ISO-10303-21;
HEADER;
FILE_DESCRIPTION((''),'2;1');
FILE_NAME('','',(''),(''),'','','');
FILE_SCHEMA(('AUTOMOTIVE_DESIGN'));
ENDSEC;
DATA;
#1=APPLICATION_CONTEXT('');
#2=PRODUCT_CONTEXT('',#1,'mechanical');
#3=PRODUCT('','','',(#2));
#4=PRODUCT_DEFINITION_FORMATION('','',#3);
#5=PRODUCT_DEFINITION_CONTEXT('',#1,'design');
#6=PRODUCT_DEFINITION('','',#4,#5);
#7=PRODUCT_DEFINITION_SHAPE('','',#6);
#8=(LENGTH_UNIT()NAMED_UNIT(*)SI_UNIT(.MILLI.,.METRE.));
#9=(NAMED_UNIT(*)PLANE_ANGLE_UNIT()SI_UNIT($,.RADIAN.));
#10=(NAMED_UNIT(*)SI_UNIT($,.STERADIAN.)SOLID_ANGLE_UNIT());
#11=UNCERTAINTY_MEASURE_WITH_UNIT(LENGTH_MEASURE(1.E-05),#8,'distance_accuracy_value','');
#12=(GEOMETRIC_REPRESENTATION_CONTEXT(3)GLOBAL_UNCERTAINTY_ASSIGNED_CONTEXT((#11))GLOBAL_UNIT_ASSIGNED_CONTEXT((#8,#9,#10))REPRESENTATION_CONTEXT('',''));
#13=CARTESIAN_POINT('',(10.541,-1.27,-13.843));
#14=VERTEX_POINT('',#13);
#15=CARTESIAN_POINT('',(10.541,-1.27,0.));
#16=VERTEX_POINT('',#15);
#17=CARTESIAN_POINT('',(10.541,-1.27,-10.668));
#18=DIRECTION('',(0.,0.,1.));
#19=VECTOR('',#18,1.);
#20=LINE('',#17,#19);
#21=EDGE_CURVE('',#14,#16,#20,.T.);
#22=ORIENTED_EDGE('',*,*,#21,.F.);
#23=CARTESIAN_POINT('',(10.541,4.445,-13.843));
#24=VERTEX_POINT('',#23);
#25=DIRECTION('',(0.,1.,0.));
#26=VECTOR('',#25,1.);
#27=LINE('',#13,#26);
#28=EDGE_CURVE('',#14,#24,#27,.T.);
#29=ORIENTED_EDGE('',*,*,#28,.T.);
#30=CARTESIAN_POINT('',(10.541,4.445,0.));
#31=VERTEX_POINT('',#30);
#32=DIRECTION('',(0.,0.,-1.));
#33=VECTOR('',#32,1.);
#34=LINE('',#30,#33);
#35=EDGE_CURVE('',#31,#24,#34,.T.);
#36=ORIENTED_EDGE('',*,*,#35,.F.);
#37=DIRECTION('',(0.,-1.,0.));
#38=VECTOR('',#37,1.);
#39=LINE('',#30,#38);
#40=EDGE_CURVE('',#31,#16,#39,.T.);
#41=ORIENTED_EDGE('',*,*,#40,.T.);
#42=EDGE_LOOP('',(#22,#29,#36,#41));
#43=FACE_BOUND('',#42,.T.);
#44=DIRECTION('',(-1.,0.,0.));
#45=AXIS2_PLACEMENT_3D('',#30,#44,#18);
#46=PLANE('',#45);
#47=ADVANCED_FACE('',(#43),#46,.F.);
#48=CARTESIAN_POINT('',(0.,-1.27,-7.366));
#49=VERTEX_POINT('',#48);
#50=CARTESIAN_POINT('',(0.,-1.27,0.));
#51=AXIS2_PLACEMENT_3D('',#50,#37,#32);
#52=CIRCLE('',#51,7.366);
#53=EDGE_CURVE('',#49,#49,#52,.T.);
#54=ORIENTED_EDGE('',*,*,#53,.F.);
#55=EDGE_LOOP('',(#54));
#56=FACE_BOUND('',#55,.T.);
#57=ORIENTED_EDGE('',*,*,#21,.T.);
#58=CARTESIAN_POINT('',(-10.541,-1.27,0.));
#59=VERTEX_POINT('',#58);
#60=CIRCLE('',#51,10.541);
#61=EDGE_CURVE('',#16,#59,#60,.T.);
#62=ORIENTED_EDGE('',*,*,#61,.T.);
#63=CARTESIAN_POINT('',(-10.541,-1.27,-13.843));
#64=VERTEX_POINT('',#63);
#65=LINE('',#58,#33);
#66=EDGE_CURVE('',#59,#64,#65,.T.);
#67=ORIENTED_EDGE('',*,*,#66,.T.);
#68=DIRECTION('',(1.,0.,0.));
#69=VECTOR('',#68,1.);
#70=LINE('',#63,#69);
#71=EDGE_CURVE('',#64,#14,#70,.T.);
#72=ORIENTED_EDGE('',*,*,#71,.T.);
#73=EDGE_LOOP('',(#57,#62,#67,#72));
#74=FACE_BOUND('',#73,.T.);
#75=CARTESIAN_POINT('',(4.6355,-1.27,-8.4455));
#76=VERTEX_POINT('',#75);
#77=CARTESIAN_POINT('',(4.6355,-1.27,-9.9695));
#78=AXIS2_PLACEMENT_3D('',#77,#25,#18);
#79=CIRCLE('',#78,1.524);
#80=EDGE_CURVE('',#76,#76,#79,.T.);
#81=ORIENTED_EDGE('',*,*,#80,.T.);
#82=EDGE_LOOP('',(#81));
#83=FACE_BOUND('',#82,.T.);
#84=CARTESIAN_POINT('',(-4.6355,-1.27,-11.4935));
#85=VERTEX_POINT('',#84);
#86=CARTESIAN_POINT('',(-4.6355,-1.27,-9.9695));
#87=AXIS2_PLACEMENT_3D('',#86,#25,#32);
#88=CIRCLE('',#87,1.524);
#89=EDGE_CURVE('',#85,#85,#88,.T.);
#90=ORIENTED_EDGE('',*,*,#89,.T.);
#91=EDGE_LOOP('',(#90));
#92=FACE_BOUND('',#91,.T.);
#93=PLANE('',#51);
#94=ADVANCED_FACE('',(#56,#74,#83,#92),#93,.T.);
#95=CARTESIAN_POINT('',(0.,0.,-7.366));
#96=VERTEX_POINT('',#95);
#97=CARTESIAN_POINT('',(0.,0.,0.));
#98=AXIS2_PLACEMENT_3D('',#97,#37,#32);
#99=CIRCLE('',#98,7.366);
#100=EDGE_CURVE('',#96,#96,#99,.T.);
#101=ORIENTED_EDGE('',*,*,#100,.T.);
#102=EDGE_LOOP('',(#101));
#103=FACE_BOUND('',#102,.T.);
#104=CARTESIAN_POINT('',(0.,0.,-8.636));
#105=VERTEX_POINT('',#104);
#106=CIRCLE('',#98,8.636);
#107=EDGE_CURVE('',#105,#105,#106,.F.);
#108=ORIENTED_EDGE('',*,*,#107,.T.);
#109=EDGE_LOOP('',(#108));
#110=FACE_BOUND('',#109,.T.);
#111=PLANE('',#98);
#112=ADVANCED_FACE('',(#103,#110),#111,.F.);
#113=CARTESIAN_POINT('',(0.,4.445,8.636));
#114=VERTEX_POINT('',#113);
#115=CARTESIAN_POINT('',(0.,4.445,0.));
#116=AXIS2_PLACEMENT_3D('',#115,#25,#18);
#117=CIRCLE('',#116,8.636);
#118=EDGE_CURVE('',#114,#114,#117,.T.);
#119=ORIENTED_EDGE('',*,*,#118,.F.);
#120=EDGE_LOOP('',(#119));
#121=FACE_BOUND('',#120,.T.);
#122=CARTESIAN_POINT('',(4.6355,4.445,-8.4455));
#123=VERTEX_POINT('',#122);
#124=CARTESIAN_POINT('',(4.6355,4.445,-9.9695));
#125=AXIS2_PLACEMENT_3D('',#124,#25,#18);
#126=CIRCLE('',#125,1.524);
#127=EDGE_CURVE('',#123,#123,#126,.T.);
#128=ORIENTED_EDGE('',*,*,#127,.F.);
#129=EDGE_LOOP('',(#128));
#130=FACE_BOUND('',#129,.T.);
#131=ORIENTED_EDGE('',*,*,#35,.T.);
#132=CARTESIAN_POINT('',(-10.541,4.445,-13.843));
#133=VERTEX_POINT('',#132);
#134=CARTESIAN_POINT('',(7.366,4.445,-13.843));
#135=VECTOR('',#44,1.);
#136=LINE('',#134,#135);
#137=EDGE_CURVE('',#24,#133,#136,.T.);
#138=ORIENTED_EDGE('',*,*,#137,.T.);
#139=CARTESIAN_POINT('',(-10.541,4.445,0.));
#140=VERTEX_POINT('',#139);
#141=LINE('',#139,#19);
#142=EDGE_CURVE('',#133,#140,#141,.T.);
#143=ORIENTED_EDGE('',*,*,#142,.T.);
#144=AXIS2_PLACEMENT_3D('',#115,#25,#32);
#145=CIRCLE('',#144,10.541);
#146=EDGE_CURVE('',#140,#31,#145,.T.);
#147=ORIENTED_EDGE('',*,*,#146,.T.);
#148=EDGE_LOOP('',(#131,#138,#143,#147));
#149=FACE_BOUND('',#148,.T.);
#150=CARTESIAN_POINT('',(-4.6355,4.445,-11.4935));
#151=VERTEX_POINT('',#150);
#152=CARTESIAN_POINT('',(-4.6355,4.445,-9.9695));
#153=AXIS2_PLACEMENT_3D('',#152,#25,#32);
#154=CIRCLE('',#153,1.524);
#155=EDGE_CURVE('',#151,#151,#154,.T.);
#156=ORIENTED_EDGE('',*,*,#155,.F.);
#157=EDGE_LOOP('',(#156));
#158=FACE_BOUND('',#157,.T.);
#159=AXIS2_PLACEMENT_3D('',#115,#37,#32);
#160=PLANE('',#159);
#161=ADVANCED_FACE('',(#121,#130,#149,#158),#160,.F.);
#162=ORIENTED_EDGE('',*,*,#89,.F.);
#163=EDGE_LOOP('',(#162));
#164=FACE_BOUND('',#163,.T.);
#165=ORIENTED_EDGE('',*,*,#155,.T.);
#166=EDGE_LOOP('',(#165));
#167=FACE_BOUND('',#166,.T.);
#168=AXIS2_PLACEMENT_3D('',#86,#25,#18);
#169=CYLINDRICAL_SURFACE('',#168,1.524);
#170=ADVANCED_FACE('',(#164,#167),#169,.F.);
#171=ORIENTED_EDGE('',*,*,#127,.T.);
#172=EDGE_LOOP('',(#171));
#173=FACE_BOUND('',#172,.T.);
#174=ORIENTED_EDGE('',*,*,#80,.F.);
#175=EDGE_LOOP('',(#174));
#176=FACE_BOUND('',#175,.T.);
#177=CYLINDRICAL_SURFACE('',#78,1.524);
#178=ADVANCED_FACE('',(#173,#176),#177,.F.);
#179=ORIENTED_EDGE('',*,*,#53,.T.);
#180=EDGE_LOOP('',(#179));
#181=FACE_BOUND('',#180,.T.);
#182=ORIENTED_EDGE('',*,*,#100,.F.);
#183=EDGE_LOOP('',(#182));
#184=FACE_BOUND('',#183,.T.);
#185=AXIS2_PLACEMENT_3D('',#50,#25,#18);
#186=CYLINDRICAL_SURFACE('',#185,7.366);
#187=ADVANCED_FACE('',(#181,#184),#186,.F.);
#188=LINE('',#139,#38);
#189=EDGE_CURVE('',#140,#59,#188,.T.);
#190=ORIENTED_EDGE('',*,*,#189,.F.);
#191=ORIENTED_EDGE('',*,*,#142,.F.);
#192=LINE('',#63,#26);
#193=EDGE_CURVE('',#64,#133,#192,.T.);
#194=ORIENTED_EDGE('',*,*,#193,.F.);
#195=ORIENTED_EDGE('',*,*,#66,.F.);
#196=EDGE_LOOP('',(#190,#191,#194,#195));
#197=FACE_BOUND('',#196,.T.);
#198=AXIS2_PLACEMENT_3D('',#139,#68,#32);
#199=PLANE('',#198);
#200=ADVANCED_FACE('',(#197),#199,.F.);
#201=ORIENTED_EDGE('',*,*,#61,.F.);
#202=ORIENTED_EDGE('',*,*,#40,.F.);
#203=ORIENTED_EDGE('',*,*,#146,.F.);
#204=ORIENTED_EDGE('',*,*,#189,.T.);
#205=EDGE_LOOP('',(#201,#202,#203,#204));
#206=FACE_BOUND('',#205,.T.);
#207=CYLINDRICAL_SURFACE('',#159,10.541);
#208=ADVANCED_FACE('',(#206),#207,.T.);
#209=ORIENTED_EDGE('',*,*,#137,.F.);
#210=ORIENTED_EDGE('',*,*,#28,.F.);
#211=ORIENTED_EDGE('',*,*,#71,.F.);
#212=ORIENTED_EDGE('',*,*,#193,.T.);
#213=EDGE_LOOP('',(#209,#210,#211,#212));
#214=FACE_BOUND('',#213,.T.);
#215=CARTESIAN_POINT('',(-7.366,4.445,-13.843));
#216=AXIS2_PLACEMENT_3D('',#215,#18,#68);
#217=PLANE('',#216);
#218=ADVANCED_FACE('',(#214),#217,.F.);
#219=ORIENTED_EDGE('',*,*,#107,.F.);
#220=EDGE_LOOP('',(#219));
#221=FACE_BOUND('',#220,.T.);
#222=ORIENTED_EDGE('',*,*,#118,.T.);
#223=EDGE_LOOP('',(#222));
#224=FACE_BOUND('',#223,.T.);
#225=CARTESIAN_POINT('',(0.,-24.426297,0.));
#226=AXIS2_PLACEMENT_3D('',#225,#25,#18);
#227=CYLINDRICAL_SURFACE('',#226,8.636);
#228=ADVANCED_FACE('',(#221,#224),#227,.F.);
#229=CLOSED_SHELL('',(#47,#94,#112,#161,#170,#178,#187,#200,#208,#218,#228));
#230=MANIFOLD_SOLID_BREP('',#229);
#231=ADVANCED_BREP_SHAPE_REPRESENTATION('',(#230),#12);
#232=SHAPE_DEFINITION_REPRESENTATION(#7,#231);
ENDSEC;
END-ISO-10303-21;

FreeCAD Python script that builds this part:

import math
import FreeCAD as App
import Part
import Sketcher
from FreeCAD import Vector
Q = App.Units.Quantity


def add_polygon(sketch, points):
    """Adds a closed chain of lines whose ends are joined by coincident constraints."""
    first, n = sketch.GeometryCount, len(points)
    for a, b in zip(points, points[1:] + points[:1]):
        sketch.addGeometry(Part.LineSegment(App.Vector(*a, 0), App.Vector(*b, 0)), False)
    for i in range(n):
        sketch.addConstraint(Sketcher.Constraint("Coincident", first + i, 2, first + (i + 1) % n, 1))

doc = App.newDocument("Part")
params = doc.addObject("Spreadsheet::Sheet", "Params")
for row, (alias, value) in enumerate([
    ("sketch1_diameter", "0.48 in"),
    ("sketch1_radius", "0.415 in"),
    ("sketch1_width", "1.58 in"),
    ("sketch1_height", "0.42 in"),
    ("sketch1_height2", "0.125 in"),
    ("pad1_length", "0.175 in"),
    ("sketch2_diameter", "0.58 in"),
    ("sketch2_radius", "0.415 in"),
    ("sketch2_height", "0.545 in"),
    ("pad2_length", "0.05 in"),
    ("sketch3_diameter", "0.68 in"),
    ("pocket1_length", "0.175 in"),
    ("sketch4_diameter", "0.12 in"),
    ("sketch5_width", "0.375 in"),
    ("sketch5_height", "0.175 in"),
    ("pocket3_length", "0.125 in"),
], start=1):
    params.set(f"A{row}", alias)
    params.set(f"B{row}", "=" + value)
    params.setAlias(f"B{row}", alias)

body = doc.addObject("PartDesign::Body", "Body")

# Sketch on XZ plane
sketch1 = body.newObject("Sketcher::SketchObject", "Sketch")
sketch1.AttachmentSupport = (doc.getObject("XZ_Plane"), [""])
sketch1.MapMode = "FlatFace"
sketch1.addGeometry([
    Part.LineSegment(Vector(-10.5, -10.7, 0), Vector(-10.5, 0, 0)),  # 0
    Part.ArcOfCircle(Part.Circle(Vector(0, 0, 0), Vector(0, 0, 1), 10.5), math.radians(0), math.radians(180)),  # 1
    Part.LineSegment(Vector(10.5, 0, 0), Vector(10.5, -10.7, 0)),  # 2
    Part.LineSegment(Vector(10.5, -10.7, 0), Vector(20.1, -10.7, 0)),  # 3
    Part.LineSegment(Vector(20.1, -10.7, 0), Vector(20.1, -13.8, 0)),  # 4
    Part.LineSegment(Vector(20.1, -13.8, 0), Vector(-20.1, -13.8, 0)),  # 5
    Part.LineSegment(Vector(-20.1, -13.8, 0), Vector(-20.1, -10.7, 0)),  # 6
    Part.LineSegment(Vector(-20.1, -10.7, 0), Vector(-10.5, -10.7, 0)),  # 7
    Part.Circle(Vector(0, 0, 0), Vector(0, 0, 1), 6.1),  # 8
], False)
sketch1.addConstraint([
    Sketcher.Constraint("Tangent", 0, 2, 1, 2),
    Sketcher.Constraint("Tangent", 1, 1, 2, 1),
    Sketcher.Constraint("Coincident", 2, 2, 3, 1),
    Sketcher.Constraint("Coincident", 3, 2, 4, 1),
    Sketcher.Constraint("Coincident", 4, 2, 5, 1),
    Sketcher.Constraint("Coincident", 5, 2, 6, 1),
    Sketcher.Constraint("Coincident", 6, 2, 7, 1),
    Sketcher.Constraint("Coincident", 7, 2, 0, 1),
    Sketcher.Constraint("Vertical", 0),
    Sketcher.Constraint("Vertical", 2),
    Sketcher.Constraint("Horizontal", 3),
    Sketcher.Constraint("Vertical", 4),
    Sketcher.Constraint("Horizontal", 5),
    Sketcher.Constraint("Vertical", 6),
    Sketcher.Constraint("Horizontal", 7),
    Sketcher.Constraint("Coincident", 1, 3, -1, 1),
    Sketcher.Constraint("Coincident", 8, 3, -1, 1),
    Sketcher.Constraint("Symmetric", 3, 2, 6, 2, -2),
    Sketcher.Constraint("Diameter", 8, Q("0.48 in")),
    Sketcher.Constraint("Radius", 1, Q("0.415 in")),
    Sketcher.Constraint("DistanceX", 5, 2, 5, 1, Q("1.58 in")),
    Sketcher.Constraint("DistanceY", 0, 1, 0, 2, Q("0.42 in")),
    Sketcher.Constraint("DistanceY", 4, 2, 4, 1, Q("0.125 in")),
])
sketch1.setExpression("Constraints[18]", "Params.sketch1_diameter")
sketch1.setExpression("Constraints[19]", "Params.sketch1_radius")
sketch1.setExpression("Constraints[20]", "Params.sketch1_width")
sketch1.setExpression("Constraints[21]", "Params.sketch1_height")
sketch1.setExpression("Constraints[22]", "Params.sketch1_height2")
pad1 = body.newObject("PartDesign::Pad", "Pad")
pad1.Profile = sketch1
pad1.setExpression("Length", "Params.pad1_length")
pad1.Reversed = True

# Sketch on XZ plane
sketch2 = body.newObject("Sketcher::SketchObject", "Sketch001")
sketch2.AttachmentSupport = (doc.getObject("XZ_Plane"), [""])
sketch2.MapMode = "FlatFace"
sketch2.addGeometry([
    Part.LineSegment(Vector(-11, 0, 0), Vector(-11, -14, 0)),  # 0
    Part.LineSegment(Vector(-11, -14, 0), Vector(11, -14, 0)),  # 1
    Part.LineSegment(Vector(11, -14, 0), Vector(11, 0, 0)),  # 2
    Part.ArcOfCircle(Part.Circle(Vector(0, 0, 0), Vector(0, 0, 1), 11), math.radians(0), math.radians(180)),  # 3
    Part.Circle(Vector(0, 0, 0), Vector(0, 0, 1), 7),  # 4
], False)
sketch2.addConstraint([
    Sketcher.Constraint("Coincident", 0, 2, 1, 1),
    Sketcher.Constraint("Coincident", 1, 2, 2, 1),
    Sketcher.Constraint("Tangent", 2, 2, 3, 1),
    Sketcher.Constraint("Tangent", 3, 2, 0, 1),
    Sketcher.Constraint("Vertical", 0),
    Sketcher.Constraint("Horizontal", 1),
    Sketcher.Constraint("Vertical", 2),
    Sketcher.Constraint("Coincident", 3, 3, -1, 1),
    Sketcher.Constraint("Coincident", 4, 3, -1, 1),
    Sketcher.Constraint("Diameter", 4, Q("0.58 in")),
    Sketcher.Constraint("Radius", 3, Q("0.415 in")),
    Sketcher.Constraint("DistanceY", 0, 2, 0, 1, Q("0.545 in")),
])
sketch2.setExpression("Constraints[9]", "Params.sketch2_diameter")
sketch2.setExpression("Constraints[10]", "Params.sketch2_radius")
sketch2.setExpression("Constraints[11]", "Params.sketch2_height")
pad2 = body.newObject("PartDesign::Pad", "Pad001")
pad2.Profile = sketch2
pad2.setExpression("Length", "Params.pad2_length")

# Sketch on XZ plane
sketch3 = body.newObject("Sketcher::SketchObject", "Sketch002")
sketch3.AttachmentSupport = (doc.getObject("XZ_Plane"), [""])
sketch3.MapMode = "FlatFace"
sketch3.AttachmentOffset = App.Placement(Vector(0, 0, -0.175 * 25.4), App.Rotation())
sketch3.addGeometry(Part.Circle(Vector(0, 0, 0), Vector(0, 0, 1), 9), False)
sketch3.addConstraint([
    Sketcher.Constraint("Coincident", 0, 3, -1, 1),
    Sketcher.Constraint("Diameter", 0, Q("0.68 in")),
])
sketch3.setExpression("Constraints[1]", "Params.sketch3_diameter")
pocket1 = body.newObject("PartDesign::Pocket", "Pocket")
pocket1.Profile = sketch3
pocket1.setExpression("Length", "Params.pocket1_length")
pocket1.Reversed = True

# Sketch on XZ plane
sketch4 = body.newObject("Sketcher::SketchObject", "Sketch003")
sketch4.AttachmentSupport = (doc.getObject("XZ_Plane"), [""])
sketch4.MapMode = "FlatFace"
sketch4.AttachmentOffset = App.Placement(Vector(0, 0, -0.175 * 25.4), App.Rotation())
sketch4.addGeometry([
    Part.Circle(Vector(4.6, -10, 0), Vector(0, 0, 1), 1.5),
    Part.Circle(Vector(-4.6, -10, 0), Vector(0, 0, 1), 1.5),
], False)
sketch4.addConstraint([
    Sketcher.Constraint("Equal", 0, 1),
    Sketcher.Constraint("Symmetric", 0, 3, 1, 3, -2),
    Sketcher.Constraint("Diameter", 0, Q("0.12 in")),
    Sketcher.Constraint("DistanceX", 1, 3, 0, 3, Q("0.365 in")),
    Sketcher.Constraint("DistanceY", 0, 3, -1, 1, Q("0.3925 in")),
])
sketch4.setExpression("Constraints[2]", "Params.sketch4_diameter")
pocket2 = body.newObject("PartDesign::Pocket", "Pocket001")
pocket2.Profile = sketch4
pocket2.Type = "ThroughAll"
pocket2.Reversed = True

# Sketch on XY plane
sketch5 = body.newObject("Sketcher::SketchObject", "Sketch004")
sketch5.AttachmentSupport = (doc.getObject("XY_Plane"), [""])
sketch5.MapMode = "FlatFace"
sketch5.AttachmentOffset = App.Placement(Vector(0, 0, -0.42 * 25.4), App.Rotation())
add_polygon(sketch5, [(10.5, 4.4), (10.5, 0), (20.1, 0), (20.1, 4.4)])  # lines 0-3
add_polygon(sketch5, [(-20.1, 4.4), (-20.1, 0), (-10.5, 0), (-10.5, 4.4)])  # lines 4-7
sketch5.addConstraint([
    Sketcher.Constraint("Vertical", 0),
    Sketcher.Constraint("Horizontal", 1),
    Sketcher.Constraint("Vertical", 2),
    Sketcher.Constraint("Horizontal", 3),
    Sketcher.Constraint("Vertical", 4),
    Sketcher.Constraint("Horizontal", 5),
    Sketcher.Constraint("Vertical", 6),
    Sketcher.Constraint("Horizontal", 7),
    Sketcher.Constraint("Symmetric", 1, 2, 4, 2, -1, 1),
    Sketcher.Constraint("Symmetric", 0, 2, 5, 2, -2),
    Sketcher.Constraint("Horizontal", 3, 2, 6, 2),
    Sketcher.Constraint("DistanceX", 1, 1, 1, 2, Q("0.375 in")),
    Sketcher.Constraint("DistanceY", 0, 2, 0, 1, Q("0.175 in")),
    Sketcher.Constraint("DistanceX", -1, 1, 1, 2, Q("0.79 in")),
])
sketch5.setExpression("Constraints[19]", "Params.sketch5_width")
sketch5.setExpression("Constraints[20]", "Params.sketch5_height")
pocket3 = body.newObject("PartDesign::Pocket", "Pocket002")
pocket3.Profile = sketch5
pocket3.setExpression("Length", "Params.pocket3_length")

doc.recompute()
